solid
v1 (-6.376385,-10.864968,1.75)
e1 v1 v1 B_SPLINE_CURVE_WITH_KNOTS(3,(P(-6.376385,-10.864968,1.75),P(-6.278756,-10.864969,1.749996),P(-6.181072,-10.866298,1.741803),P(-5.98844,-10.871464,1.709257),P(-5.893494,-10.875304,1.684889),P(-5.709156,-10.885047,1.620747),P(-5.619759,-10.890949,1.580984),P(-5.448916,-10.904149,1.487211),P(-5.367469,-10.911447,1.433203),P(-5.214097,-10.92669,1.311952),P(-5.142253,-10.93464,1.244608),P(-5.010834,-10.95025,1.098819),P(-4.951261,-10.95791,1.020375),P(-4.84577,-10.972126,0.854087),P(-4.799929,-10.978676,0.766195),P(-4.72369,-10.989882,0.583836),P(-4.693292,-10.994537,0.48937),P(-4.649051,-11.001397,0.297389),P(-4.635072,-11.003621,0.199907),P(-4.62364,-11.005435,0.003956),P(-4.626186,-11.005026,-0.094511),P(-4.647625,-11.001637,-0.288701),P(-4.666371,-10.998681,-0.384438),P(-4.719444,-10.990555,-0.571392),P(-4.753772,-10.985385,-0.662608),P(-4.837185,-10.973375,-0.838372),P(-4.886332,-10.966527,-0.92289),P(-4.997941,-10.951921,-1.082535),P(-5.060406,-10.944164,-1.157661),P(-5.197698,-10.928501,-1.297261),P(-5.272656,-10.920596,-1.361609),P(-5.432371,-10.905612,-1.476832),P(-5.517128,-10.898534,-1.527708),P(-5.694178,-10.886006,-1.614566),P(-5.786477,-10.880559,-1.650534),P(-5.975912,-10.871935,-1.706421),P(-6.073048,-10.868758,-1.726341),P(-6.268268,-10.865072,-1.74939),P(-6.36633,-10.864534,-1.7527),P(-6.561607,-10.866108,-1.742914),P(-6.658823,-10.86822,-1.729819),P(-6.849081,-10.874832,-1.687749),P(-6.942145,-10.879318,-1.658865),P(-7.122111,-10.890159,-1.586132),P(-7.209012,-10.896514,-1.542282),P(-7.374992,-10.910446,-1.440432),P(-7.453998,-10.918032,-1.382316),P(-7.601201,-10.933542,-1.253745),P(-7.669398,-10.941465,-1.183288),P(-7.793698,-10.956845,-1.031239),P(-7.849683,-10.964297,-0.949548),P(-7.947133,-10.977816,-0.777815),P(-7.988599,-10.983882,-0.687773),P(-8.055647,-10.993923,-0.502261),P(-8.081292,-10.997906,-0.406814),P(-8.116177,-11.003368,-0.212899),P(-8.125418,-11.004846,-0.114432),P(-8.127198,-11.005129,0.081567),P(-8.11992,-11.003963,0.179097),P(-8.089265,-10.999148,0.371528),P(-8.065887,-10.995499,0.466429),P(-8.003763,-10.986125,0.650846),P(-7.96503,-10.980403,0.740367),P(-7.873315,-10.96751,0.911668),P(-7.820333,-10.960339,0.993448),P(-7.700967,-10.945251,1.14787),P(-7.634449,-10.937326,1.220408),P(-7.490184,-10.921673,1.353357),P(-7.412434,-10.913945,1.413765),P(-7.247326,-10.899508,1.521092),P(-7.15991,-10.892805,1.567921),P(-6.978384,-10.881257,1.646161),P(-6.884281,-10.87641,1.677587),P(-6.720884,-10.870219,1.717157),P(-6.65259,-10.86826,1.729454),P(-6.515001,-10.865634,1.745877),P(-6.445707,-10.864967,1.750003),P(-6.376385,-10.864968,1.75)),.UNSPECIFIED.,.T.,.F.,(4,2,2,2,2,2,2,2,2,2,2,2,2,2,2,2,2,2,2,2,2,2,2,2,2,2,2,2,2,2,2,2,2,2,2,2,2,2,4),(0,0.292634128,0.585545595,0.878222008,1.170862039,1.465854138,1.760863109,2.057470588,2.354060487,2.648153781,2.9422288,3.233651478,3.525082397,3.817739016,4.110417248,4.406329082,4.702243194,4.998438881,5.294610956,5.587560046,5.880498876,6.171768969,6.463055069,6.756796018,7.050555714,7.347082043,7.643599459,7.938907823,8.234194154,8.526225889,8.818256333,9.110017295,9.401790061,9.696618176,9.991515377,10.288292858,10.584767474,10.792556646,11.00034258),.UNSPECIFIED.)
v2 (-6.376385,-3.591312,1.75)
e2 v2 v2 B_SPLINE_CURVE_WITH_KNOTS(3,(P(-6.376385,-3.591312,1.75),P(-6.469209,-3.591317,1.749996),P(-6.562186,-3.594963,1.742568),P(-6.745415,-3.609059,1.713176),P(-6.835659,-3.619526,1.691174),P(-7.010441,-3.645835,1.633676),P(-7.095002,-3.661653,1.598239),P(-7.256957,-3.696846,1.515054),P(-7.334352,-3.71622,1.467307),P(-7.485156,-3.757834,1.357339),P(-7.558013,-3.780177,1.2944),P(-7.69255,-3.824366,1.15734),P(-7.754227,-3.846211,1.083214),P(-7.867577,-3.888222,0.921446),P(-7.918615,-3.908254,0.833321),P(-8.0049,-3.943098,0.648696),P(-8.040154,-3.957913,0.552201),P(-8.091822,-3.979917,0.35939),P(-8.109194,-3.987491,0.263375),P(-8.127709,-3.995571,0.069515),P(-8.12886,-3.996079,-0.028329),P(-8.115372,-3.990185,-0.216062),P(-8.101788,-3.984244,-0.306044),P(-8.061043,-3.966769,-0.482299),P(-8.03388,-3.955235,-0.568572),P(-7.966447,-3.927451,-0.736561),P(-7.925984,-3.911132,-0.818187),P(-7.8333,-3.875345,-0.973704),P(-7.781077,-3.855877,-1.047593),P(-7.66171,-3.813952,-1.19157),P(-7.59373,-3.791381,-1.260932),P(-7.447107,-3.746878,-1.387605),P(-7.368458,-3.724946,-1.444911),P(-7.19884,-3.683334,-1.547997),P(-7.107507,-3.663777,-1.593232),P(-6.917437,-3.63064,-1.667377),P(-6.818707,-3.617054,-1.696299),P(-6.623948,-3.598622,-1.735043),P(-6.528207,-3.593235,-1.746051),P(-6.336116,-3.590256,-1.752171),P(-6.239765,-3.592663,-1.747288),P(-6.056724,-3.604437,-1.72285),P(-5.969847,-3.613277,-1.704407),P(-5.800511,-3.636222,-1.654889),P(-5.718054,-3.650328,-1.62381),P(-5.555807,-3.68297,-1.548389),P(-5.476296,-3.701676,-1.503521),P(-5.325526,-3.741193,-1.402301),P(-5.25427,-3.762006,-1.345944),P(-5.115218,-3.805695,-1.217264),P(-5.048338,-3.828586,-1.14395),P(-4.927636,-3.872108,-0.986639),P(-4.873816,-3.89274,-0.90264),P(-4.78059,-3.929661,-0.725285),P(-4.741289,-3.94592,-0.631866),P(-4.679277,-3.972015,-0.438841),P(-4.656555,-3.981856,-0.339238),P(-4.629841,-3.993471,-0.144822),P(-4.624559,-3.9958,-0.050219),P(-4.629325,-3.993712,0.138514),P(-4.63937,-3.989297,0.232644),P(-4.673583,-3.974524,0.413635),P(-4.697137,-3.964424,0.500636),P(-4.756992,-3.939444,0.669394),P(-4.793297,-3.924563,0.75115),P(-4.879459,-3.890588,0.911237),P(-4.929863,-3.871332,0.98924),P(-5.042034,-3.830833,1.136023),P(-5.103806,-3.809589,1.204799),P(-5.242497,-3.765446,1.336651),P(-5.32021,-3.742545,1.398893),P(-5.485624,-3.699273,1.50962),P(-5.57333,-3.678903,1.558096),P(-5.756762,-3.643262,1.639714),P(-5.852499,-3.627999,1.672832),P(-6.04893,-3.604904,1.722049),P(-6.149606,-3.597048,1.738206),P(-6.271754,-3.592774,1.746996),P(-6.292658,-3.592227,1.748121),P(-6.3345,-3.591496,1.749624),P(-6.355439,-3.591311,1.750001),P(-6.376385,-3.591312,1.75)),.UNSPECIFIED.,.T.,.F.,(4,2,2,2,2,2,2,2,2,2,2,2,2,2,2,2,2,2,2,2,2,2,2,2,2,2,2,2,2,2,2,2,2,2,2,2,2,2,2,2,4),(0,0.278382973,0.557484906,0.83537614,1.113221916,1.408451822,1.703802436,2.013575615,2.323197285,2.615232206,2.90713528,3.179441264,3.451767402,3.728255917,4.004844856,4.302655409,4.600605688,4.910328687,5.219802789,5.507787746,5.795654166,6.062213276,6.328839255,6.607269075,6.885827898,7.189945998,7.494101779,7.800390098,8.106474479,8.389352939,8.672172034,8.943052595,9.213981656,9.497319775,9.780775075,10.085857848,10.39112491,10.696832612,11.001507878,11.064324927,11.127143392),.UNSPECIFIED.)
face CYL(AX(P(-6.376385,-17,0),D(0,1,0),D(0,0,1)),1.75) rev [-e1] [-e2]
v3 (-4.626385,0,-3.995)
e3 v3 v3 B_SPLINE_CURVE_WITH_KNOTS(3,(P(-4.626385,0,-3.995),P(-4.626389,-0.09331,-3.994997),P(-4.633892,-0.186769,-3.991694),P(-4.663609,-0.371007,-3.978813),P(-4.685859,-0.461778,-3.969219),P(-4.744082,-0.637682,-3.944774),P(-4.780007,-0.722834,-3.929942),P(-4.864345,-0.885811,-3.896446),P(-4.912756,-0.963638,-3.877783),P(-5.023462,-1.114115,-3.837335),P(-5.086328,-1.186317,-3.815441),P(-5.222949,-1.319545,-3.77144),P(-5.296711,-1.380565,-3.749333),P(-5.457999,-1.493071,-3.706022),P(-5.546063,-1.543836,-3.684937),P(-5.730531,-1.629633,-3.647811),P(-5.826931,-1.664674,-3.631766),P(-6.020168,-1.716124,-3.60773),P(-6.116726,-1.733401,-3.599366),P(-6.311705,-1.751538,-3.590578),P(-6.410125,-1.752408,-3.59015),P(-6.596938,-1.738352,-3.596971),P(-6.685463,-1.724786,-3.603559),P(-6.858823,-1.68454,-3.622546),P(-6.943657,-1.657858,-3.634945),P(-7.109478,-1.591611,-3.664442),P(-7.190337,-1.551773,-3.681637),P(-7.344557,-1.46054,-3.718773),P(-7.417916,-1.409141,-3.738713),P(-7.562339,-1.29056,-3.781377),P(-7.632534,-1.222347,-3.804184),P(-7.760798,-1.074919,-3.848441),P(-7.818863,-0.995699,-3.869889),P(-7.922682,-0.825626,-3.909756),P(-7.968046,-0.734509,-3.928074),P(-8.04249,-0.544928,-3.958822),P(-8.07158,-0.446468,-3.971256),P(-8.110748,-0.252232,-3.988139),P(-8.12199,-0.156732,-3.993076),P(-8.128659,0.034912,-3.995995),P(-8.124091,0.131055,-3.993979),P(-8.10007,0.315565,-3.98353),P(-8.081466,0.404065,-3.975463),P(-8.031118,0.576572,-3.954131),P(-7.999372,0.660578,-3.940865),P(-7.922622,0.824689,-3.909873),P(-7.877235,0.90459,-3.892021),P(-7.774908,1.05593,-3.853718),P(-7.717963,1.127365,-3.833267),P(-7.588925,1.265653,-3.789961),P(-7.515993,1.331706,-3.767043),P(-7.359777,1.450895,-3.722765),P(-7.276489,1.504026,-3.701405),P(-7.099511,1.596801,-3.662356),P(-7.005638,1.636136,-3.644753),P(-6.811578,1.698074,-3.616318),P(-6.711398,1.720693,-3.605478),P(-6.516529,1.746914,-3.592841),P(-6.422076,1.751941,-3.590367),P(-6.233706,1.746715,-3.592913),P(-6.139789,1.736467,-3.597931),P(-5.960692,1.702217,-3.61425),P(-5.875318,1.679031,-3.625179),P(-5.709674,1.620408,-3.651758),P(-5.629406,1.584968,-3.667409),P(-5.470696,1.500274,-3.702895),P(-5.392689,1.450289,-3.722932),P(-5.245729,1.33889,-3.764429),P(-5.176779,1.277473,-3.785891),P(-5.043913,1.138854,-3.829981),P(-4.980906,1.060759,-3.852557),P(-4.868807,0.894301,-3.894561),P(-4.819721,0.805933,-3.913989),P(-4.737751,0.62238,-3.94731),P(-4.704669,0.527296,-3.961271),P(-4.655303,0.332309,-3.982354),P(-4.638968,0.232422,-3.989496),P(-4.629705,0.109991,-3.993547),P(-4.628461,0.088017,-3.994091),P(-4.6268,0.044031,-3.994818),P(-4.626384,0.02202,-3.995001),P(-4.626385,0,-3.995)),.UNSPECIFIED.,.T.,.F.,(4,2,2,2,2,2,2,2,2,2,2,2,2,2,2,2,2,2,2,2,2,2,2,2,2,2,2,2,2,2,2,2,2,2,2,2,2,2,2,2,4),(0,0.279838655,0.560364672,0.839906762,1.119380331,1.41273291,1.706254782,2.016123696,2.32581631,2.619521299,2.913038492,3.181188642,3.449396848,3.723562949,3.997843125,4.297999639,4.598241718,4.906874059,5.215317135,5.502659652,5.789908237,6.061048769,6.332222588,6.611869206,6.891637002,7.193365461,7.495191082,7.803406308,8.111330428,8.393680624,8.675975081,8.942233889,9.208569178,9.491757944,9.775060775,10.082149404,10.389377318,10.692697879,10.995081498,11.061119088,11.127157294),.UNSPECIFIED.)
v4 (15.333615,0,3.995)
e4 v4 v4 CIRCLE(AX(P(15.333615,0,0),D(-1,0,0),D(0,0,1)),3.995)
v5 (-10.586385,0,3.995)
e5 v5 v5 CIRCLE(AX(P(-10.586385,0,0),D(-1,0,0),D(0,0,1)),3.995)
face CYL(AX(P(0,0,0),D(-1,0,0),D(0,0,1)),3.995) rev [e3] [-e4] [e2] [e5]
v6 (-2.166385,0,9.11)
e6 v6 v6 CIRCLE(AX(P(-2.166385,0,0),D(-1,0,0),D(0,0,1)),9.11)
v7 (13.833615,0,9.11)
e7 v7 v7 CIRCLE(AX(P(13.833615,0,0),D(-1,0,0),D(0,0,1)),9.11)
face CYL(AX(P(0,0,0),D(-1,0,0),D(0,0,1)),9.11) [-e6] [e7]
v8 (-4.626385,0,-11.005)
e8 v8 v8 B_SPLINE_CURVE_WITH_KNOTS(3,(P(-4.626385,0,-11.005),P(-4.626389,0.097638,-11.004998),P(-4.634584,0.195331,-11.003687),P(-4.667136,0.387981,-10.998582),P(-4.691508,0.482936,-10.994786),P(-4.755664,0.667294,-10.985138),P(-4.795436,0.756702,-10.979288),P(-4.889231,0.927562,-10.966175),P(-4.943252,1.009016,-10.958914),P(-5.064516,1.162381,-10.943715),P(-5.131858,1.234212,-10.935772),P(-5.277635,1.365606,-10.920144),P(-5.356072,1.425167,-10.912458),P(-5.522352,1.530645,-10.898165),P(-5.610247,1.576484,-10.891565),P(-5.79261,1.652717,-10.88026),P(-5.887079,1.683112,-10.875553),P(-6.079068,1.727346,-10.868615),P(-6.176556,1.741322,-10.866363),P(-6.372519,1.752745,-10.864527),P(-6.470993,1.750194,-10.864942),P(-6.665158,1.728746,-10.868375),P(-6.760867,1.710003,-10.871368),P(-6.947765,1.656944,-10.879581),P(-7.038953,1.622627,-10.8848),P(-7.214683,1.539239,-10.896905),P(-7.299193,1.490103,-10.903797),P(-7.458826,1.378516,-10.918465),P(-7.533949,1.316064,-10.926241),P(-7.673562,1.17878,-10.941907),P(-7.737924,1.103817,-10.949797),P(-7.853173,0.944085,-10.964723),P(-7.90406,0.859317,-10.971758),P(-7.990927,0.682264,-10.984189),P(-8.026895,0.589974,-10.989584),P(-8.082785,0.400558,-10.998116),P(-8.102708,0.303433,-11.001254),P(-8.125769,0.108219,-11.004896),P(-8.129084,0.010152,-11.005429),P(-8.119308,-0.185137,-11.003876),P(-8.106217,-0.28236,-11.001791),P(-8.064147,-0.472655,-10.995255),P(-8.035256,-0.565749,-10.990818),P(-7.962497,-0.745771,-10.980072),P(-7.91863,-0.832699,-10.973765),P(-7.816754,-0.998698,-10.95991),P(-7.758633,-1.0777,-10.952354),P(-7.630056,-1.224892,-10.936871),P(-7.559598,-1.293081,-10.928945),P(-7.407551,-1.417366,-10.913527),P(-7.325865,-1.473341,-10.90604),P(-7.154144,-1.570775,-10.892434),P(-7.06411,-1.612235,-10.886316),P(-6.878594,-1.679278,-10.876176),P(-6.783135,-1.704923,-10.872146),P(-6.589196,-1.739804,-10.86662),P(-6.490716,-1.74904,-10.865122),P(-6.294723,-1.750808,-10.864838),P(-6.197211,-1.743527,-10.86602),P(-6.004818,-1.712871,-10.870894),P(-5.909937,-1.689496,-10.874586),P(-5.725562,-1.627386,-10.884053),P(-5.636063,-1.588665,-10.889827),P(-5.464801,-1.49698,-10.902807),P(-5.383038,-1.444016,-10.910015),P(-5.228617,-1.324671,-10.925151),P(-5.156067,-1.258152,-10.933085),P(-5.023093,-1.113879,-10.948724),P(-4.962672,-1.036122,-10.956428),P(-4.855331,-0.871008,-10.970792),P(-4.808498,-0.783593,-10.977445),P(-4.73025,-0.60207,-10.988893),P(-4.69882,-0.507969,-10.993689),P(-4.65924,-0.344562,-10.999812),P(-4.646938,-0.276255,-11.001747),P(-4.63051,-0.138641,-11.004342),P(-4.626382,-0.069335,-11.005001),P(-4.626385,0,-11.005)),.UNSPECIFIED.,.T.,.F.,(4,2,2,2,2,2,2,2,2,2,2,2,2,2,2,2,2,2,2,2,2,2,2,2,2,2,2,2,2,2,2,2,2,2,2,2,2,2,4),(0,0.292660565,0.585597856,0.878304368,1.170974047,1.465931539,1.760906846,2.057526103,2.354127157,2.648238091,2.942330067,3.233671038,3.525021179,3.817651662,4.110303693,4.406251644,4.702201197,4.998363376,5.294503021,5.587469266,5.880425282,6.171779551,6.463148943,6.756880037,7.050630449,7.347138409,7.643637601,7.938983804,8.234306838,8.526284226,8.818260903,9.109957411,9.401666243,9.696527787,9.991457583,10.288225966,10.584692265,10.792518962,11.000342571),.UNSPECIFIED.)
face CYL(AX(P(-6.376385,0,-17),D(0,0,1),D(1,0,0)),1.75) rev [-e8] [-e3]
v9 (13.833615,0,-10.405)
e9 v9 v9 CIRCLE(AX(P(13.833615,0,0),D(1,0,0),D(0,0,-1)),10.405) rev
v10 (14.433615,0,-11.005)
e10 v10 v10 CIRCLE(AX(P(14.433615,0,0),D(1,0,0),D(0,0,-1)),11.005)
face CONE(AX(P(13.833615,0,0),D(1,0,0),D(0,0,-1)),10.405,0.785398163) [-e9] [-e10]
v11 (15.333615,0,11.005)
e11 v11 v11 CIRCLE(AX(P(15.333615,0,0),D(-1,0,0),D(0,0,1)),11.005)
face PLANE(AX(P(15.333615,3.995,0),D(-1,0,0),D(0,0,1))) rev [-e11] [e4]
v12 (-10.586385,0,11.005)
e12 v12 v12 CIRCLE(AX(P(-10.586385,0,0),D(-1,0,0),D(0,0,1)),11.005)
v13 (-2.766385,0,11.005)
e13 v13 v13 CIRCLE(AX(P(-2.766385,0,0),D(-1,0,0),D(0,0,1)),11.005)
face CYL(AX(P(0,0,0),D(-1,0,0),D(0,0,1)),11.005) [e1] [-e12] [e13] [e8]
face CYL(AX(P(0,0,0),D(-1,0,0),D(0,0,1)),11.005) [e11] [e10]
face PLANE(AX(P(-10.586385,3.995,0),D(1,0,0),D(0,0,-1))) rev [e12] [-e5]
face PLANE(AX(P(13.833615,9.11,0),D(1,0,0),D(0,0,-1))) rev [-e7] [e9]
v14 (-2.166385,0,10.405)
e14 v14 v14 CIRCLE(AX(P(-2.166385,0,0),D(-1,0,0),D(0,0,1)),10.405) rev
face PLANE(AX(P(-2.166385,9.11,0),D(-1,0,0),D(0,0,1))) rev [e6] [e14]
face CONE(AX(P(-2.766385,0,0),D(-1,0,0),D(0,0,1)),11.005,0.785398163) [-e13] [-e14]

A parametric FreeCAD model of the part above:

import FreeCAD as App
import Part
import Sketcher
Q = App.Units.Quantity


def edges_at(feature, points):
    """Names of the edges that pass closest to the given points."""
    edges = feature.Shape.Edges
    near = lambda p: min(range(len(edges)), key=lambda i: edges[i].distToShape(Part.Vertex(*p))[0])
    return sorted({f"Edge{near(p) + 1}" for p in points})

doc = App.newDocument("Part")
body = doc.addObject("PartDesign::Body", "Body")

# Sketch on XY plane
sketch1 = body.newObject("Sketcher::SketchObject", "Sketch")
sketch1.AttachmentSupport = (doc.getObject("XY_Plane"), [""])
sketch1.MapMode = "FlatFace"
sketch1.addGeometry([
    Part.LineSegment(App.Vector(-10.586385, 3.995, 0), App.Vector(15.333615, 3.995, 0)),  # 0
    Part.LineSegment(App.Vector(15.333615, 3.995, 0), App.Vector(15.333615, 11.005, 0)),  # 1
    Part.LineSegment(App.Vector(15.333615, 11.005, 0), App.Vector(13.833615, 11.005, 0)),  # 2
    Part.LineSegment(App.Vector(13.833615, 11.005, 0), App.Vector(13.833615, 9.11, 0)),  # 3
    Part.LineSegment(App.Vector(13.833615, 9.11, 0), App.Vector(-2.166385, 9.11, 0)),  # 4
    Part.LineSegment(App.Vector(-2.166385, 9.11, 0), App.Vector(-2.166385, 11.005, 0)),  # 5
    Part.LineSegment(App.Vector(-2.166385, 11.005, 0), App.Vector(-10.586385, 11.005, 0)),  # 6
    Part.LineSegment(App.Vector(-10.586385, 11.005, 0), App.Vector(-10.586385, 3.995, 0)),  # 7
], False)
sketch1.addConstraint([
    Sketcher.Constraint("Coincident", 0, 2, 1, 1),
    Sketcher.Constraint("Coincident", 1, 2, 2, 1),
    Sketcher.Constraint("Coincident", 2, 2, 3, 1),
    Sketcher.Constraint("Coincident", 3, 2, 4, 1),
    Sketcher.Constraint("Coincident", 4, 2, 5, 1),
    Sketcher.Constraint("Coincident", 5, 2, 6, 1),
    Sketcher.Constraint("Coincident", 6, 2, 7, 1),
    Sketcher.Constraint("Coincident", 7, 2, 0, 1),
    Sketcher.Constraint("Horizontal", 0),
    Sketcher.Constraint("Vertical", 1),
    Sketcher.Constraint("Horizontal", 2),
    Sketcher.Constraint("Vertical", 3),
    Sketcher.Constraint("Horizontal", 4),
    Sketcher.Constraint("Vertical", 5),
    Sketcher.Constraint("Horizontal", 6),
    Sketcher.Constraint("Vertical", 7),
    Sketcher.Constraint("Horizontal", 2, 2, 5, 2),
    Sketcher.Constraint("DistanceX", 4, 2, 4, 1, Q("16 mm")),
    Sketcher.Constraint("DistanceX", 2, 2, 2, 1, Q("1.5 mm")),
    Sketcher.Constraint("DistanceX", 0, 1, 0, 2, Q("25.92 mm")),
    Sketcher.Constraint("DistanceY", 1, 1, 1, 2, Q("7.01 mm")),
    Sketcher.Constraint("DistanceY", 3, 2, 3, 1, Q("1.895 mm")),
    Sketcher.Constraint("DistanceY", -1, 1, 3, 2, Q("9.11 mm")),
    Sketcher.Constraint("DistanceX", -1, 1, 0, 2, Q("15.333615 mm")),
])
revolution = body.newObject("PartDesign::Revolution", "Revolution")
revolution.Profile = sketch1
revolution.ReferenceAxis = (sketch1, ["H_Axis"])
revolution.Angle = 360

# Sketch on XY plane
sketch2 = body.newObject("Sketcher::SketchObject", "Sketch001")
sketch2.AttachmentSupport = (doc.getObject("XY_Plane"), [""])
sketch2.MapMode = "FlatFace"
sketch2.addGeometry(Part.Circle(App.Vector(-6.376385, 0, 0), App.Vector(0, 0, 1), 1.75), False)
sketch2.addConstraint([
    Sketcher.Constraint("PointOnObject", 0, 3, -1),
    Sketcher.Constraint("Diameter", 0, Q("3.5 mm")),
    Sketcher.Constraint("DistanceX", 0, 3, -1, 1, Q("6.376385 mm")),
])
pocket1 = body.newObject("PartDesign::Pocket", "Pocket")
pocket1.Profile = sketch2
pocket1.Length = 17
doc.recompute()

polarpattern = body.newObject("PartDesign::PolarPattern", "PolarPattern")
polarpattern.Originals = [pocket1]
polarpattern.Axis = (doc.getObject("X_Axis"), [""])
polarpattern.Angle = 90
polarpattern.Occurrences = 2
polarpattern.Reversed = True
body.Tip = polarpattern
doc.recompute()

chamfer = body.newObject("PartDesign::Chamfer", "Chamfer")
chamfer.Base = (polarpattern, edges_at(polarpattern, [(-2.166, -11.005, 0), (13.834, -11.005, 0)]))
chamfer.Size = 0.6

doc.recompute()
